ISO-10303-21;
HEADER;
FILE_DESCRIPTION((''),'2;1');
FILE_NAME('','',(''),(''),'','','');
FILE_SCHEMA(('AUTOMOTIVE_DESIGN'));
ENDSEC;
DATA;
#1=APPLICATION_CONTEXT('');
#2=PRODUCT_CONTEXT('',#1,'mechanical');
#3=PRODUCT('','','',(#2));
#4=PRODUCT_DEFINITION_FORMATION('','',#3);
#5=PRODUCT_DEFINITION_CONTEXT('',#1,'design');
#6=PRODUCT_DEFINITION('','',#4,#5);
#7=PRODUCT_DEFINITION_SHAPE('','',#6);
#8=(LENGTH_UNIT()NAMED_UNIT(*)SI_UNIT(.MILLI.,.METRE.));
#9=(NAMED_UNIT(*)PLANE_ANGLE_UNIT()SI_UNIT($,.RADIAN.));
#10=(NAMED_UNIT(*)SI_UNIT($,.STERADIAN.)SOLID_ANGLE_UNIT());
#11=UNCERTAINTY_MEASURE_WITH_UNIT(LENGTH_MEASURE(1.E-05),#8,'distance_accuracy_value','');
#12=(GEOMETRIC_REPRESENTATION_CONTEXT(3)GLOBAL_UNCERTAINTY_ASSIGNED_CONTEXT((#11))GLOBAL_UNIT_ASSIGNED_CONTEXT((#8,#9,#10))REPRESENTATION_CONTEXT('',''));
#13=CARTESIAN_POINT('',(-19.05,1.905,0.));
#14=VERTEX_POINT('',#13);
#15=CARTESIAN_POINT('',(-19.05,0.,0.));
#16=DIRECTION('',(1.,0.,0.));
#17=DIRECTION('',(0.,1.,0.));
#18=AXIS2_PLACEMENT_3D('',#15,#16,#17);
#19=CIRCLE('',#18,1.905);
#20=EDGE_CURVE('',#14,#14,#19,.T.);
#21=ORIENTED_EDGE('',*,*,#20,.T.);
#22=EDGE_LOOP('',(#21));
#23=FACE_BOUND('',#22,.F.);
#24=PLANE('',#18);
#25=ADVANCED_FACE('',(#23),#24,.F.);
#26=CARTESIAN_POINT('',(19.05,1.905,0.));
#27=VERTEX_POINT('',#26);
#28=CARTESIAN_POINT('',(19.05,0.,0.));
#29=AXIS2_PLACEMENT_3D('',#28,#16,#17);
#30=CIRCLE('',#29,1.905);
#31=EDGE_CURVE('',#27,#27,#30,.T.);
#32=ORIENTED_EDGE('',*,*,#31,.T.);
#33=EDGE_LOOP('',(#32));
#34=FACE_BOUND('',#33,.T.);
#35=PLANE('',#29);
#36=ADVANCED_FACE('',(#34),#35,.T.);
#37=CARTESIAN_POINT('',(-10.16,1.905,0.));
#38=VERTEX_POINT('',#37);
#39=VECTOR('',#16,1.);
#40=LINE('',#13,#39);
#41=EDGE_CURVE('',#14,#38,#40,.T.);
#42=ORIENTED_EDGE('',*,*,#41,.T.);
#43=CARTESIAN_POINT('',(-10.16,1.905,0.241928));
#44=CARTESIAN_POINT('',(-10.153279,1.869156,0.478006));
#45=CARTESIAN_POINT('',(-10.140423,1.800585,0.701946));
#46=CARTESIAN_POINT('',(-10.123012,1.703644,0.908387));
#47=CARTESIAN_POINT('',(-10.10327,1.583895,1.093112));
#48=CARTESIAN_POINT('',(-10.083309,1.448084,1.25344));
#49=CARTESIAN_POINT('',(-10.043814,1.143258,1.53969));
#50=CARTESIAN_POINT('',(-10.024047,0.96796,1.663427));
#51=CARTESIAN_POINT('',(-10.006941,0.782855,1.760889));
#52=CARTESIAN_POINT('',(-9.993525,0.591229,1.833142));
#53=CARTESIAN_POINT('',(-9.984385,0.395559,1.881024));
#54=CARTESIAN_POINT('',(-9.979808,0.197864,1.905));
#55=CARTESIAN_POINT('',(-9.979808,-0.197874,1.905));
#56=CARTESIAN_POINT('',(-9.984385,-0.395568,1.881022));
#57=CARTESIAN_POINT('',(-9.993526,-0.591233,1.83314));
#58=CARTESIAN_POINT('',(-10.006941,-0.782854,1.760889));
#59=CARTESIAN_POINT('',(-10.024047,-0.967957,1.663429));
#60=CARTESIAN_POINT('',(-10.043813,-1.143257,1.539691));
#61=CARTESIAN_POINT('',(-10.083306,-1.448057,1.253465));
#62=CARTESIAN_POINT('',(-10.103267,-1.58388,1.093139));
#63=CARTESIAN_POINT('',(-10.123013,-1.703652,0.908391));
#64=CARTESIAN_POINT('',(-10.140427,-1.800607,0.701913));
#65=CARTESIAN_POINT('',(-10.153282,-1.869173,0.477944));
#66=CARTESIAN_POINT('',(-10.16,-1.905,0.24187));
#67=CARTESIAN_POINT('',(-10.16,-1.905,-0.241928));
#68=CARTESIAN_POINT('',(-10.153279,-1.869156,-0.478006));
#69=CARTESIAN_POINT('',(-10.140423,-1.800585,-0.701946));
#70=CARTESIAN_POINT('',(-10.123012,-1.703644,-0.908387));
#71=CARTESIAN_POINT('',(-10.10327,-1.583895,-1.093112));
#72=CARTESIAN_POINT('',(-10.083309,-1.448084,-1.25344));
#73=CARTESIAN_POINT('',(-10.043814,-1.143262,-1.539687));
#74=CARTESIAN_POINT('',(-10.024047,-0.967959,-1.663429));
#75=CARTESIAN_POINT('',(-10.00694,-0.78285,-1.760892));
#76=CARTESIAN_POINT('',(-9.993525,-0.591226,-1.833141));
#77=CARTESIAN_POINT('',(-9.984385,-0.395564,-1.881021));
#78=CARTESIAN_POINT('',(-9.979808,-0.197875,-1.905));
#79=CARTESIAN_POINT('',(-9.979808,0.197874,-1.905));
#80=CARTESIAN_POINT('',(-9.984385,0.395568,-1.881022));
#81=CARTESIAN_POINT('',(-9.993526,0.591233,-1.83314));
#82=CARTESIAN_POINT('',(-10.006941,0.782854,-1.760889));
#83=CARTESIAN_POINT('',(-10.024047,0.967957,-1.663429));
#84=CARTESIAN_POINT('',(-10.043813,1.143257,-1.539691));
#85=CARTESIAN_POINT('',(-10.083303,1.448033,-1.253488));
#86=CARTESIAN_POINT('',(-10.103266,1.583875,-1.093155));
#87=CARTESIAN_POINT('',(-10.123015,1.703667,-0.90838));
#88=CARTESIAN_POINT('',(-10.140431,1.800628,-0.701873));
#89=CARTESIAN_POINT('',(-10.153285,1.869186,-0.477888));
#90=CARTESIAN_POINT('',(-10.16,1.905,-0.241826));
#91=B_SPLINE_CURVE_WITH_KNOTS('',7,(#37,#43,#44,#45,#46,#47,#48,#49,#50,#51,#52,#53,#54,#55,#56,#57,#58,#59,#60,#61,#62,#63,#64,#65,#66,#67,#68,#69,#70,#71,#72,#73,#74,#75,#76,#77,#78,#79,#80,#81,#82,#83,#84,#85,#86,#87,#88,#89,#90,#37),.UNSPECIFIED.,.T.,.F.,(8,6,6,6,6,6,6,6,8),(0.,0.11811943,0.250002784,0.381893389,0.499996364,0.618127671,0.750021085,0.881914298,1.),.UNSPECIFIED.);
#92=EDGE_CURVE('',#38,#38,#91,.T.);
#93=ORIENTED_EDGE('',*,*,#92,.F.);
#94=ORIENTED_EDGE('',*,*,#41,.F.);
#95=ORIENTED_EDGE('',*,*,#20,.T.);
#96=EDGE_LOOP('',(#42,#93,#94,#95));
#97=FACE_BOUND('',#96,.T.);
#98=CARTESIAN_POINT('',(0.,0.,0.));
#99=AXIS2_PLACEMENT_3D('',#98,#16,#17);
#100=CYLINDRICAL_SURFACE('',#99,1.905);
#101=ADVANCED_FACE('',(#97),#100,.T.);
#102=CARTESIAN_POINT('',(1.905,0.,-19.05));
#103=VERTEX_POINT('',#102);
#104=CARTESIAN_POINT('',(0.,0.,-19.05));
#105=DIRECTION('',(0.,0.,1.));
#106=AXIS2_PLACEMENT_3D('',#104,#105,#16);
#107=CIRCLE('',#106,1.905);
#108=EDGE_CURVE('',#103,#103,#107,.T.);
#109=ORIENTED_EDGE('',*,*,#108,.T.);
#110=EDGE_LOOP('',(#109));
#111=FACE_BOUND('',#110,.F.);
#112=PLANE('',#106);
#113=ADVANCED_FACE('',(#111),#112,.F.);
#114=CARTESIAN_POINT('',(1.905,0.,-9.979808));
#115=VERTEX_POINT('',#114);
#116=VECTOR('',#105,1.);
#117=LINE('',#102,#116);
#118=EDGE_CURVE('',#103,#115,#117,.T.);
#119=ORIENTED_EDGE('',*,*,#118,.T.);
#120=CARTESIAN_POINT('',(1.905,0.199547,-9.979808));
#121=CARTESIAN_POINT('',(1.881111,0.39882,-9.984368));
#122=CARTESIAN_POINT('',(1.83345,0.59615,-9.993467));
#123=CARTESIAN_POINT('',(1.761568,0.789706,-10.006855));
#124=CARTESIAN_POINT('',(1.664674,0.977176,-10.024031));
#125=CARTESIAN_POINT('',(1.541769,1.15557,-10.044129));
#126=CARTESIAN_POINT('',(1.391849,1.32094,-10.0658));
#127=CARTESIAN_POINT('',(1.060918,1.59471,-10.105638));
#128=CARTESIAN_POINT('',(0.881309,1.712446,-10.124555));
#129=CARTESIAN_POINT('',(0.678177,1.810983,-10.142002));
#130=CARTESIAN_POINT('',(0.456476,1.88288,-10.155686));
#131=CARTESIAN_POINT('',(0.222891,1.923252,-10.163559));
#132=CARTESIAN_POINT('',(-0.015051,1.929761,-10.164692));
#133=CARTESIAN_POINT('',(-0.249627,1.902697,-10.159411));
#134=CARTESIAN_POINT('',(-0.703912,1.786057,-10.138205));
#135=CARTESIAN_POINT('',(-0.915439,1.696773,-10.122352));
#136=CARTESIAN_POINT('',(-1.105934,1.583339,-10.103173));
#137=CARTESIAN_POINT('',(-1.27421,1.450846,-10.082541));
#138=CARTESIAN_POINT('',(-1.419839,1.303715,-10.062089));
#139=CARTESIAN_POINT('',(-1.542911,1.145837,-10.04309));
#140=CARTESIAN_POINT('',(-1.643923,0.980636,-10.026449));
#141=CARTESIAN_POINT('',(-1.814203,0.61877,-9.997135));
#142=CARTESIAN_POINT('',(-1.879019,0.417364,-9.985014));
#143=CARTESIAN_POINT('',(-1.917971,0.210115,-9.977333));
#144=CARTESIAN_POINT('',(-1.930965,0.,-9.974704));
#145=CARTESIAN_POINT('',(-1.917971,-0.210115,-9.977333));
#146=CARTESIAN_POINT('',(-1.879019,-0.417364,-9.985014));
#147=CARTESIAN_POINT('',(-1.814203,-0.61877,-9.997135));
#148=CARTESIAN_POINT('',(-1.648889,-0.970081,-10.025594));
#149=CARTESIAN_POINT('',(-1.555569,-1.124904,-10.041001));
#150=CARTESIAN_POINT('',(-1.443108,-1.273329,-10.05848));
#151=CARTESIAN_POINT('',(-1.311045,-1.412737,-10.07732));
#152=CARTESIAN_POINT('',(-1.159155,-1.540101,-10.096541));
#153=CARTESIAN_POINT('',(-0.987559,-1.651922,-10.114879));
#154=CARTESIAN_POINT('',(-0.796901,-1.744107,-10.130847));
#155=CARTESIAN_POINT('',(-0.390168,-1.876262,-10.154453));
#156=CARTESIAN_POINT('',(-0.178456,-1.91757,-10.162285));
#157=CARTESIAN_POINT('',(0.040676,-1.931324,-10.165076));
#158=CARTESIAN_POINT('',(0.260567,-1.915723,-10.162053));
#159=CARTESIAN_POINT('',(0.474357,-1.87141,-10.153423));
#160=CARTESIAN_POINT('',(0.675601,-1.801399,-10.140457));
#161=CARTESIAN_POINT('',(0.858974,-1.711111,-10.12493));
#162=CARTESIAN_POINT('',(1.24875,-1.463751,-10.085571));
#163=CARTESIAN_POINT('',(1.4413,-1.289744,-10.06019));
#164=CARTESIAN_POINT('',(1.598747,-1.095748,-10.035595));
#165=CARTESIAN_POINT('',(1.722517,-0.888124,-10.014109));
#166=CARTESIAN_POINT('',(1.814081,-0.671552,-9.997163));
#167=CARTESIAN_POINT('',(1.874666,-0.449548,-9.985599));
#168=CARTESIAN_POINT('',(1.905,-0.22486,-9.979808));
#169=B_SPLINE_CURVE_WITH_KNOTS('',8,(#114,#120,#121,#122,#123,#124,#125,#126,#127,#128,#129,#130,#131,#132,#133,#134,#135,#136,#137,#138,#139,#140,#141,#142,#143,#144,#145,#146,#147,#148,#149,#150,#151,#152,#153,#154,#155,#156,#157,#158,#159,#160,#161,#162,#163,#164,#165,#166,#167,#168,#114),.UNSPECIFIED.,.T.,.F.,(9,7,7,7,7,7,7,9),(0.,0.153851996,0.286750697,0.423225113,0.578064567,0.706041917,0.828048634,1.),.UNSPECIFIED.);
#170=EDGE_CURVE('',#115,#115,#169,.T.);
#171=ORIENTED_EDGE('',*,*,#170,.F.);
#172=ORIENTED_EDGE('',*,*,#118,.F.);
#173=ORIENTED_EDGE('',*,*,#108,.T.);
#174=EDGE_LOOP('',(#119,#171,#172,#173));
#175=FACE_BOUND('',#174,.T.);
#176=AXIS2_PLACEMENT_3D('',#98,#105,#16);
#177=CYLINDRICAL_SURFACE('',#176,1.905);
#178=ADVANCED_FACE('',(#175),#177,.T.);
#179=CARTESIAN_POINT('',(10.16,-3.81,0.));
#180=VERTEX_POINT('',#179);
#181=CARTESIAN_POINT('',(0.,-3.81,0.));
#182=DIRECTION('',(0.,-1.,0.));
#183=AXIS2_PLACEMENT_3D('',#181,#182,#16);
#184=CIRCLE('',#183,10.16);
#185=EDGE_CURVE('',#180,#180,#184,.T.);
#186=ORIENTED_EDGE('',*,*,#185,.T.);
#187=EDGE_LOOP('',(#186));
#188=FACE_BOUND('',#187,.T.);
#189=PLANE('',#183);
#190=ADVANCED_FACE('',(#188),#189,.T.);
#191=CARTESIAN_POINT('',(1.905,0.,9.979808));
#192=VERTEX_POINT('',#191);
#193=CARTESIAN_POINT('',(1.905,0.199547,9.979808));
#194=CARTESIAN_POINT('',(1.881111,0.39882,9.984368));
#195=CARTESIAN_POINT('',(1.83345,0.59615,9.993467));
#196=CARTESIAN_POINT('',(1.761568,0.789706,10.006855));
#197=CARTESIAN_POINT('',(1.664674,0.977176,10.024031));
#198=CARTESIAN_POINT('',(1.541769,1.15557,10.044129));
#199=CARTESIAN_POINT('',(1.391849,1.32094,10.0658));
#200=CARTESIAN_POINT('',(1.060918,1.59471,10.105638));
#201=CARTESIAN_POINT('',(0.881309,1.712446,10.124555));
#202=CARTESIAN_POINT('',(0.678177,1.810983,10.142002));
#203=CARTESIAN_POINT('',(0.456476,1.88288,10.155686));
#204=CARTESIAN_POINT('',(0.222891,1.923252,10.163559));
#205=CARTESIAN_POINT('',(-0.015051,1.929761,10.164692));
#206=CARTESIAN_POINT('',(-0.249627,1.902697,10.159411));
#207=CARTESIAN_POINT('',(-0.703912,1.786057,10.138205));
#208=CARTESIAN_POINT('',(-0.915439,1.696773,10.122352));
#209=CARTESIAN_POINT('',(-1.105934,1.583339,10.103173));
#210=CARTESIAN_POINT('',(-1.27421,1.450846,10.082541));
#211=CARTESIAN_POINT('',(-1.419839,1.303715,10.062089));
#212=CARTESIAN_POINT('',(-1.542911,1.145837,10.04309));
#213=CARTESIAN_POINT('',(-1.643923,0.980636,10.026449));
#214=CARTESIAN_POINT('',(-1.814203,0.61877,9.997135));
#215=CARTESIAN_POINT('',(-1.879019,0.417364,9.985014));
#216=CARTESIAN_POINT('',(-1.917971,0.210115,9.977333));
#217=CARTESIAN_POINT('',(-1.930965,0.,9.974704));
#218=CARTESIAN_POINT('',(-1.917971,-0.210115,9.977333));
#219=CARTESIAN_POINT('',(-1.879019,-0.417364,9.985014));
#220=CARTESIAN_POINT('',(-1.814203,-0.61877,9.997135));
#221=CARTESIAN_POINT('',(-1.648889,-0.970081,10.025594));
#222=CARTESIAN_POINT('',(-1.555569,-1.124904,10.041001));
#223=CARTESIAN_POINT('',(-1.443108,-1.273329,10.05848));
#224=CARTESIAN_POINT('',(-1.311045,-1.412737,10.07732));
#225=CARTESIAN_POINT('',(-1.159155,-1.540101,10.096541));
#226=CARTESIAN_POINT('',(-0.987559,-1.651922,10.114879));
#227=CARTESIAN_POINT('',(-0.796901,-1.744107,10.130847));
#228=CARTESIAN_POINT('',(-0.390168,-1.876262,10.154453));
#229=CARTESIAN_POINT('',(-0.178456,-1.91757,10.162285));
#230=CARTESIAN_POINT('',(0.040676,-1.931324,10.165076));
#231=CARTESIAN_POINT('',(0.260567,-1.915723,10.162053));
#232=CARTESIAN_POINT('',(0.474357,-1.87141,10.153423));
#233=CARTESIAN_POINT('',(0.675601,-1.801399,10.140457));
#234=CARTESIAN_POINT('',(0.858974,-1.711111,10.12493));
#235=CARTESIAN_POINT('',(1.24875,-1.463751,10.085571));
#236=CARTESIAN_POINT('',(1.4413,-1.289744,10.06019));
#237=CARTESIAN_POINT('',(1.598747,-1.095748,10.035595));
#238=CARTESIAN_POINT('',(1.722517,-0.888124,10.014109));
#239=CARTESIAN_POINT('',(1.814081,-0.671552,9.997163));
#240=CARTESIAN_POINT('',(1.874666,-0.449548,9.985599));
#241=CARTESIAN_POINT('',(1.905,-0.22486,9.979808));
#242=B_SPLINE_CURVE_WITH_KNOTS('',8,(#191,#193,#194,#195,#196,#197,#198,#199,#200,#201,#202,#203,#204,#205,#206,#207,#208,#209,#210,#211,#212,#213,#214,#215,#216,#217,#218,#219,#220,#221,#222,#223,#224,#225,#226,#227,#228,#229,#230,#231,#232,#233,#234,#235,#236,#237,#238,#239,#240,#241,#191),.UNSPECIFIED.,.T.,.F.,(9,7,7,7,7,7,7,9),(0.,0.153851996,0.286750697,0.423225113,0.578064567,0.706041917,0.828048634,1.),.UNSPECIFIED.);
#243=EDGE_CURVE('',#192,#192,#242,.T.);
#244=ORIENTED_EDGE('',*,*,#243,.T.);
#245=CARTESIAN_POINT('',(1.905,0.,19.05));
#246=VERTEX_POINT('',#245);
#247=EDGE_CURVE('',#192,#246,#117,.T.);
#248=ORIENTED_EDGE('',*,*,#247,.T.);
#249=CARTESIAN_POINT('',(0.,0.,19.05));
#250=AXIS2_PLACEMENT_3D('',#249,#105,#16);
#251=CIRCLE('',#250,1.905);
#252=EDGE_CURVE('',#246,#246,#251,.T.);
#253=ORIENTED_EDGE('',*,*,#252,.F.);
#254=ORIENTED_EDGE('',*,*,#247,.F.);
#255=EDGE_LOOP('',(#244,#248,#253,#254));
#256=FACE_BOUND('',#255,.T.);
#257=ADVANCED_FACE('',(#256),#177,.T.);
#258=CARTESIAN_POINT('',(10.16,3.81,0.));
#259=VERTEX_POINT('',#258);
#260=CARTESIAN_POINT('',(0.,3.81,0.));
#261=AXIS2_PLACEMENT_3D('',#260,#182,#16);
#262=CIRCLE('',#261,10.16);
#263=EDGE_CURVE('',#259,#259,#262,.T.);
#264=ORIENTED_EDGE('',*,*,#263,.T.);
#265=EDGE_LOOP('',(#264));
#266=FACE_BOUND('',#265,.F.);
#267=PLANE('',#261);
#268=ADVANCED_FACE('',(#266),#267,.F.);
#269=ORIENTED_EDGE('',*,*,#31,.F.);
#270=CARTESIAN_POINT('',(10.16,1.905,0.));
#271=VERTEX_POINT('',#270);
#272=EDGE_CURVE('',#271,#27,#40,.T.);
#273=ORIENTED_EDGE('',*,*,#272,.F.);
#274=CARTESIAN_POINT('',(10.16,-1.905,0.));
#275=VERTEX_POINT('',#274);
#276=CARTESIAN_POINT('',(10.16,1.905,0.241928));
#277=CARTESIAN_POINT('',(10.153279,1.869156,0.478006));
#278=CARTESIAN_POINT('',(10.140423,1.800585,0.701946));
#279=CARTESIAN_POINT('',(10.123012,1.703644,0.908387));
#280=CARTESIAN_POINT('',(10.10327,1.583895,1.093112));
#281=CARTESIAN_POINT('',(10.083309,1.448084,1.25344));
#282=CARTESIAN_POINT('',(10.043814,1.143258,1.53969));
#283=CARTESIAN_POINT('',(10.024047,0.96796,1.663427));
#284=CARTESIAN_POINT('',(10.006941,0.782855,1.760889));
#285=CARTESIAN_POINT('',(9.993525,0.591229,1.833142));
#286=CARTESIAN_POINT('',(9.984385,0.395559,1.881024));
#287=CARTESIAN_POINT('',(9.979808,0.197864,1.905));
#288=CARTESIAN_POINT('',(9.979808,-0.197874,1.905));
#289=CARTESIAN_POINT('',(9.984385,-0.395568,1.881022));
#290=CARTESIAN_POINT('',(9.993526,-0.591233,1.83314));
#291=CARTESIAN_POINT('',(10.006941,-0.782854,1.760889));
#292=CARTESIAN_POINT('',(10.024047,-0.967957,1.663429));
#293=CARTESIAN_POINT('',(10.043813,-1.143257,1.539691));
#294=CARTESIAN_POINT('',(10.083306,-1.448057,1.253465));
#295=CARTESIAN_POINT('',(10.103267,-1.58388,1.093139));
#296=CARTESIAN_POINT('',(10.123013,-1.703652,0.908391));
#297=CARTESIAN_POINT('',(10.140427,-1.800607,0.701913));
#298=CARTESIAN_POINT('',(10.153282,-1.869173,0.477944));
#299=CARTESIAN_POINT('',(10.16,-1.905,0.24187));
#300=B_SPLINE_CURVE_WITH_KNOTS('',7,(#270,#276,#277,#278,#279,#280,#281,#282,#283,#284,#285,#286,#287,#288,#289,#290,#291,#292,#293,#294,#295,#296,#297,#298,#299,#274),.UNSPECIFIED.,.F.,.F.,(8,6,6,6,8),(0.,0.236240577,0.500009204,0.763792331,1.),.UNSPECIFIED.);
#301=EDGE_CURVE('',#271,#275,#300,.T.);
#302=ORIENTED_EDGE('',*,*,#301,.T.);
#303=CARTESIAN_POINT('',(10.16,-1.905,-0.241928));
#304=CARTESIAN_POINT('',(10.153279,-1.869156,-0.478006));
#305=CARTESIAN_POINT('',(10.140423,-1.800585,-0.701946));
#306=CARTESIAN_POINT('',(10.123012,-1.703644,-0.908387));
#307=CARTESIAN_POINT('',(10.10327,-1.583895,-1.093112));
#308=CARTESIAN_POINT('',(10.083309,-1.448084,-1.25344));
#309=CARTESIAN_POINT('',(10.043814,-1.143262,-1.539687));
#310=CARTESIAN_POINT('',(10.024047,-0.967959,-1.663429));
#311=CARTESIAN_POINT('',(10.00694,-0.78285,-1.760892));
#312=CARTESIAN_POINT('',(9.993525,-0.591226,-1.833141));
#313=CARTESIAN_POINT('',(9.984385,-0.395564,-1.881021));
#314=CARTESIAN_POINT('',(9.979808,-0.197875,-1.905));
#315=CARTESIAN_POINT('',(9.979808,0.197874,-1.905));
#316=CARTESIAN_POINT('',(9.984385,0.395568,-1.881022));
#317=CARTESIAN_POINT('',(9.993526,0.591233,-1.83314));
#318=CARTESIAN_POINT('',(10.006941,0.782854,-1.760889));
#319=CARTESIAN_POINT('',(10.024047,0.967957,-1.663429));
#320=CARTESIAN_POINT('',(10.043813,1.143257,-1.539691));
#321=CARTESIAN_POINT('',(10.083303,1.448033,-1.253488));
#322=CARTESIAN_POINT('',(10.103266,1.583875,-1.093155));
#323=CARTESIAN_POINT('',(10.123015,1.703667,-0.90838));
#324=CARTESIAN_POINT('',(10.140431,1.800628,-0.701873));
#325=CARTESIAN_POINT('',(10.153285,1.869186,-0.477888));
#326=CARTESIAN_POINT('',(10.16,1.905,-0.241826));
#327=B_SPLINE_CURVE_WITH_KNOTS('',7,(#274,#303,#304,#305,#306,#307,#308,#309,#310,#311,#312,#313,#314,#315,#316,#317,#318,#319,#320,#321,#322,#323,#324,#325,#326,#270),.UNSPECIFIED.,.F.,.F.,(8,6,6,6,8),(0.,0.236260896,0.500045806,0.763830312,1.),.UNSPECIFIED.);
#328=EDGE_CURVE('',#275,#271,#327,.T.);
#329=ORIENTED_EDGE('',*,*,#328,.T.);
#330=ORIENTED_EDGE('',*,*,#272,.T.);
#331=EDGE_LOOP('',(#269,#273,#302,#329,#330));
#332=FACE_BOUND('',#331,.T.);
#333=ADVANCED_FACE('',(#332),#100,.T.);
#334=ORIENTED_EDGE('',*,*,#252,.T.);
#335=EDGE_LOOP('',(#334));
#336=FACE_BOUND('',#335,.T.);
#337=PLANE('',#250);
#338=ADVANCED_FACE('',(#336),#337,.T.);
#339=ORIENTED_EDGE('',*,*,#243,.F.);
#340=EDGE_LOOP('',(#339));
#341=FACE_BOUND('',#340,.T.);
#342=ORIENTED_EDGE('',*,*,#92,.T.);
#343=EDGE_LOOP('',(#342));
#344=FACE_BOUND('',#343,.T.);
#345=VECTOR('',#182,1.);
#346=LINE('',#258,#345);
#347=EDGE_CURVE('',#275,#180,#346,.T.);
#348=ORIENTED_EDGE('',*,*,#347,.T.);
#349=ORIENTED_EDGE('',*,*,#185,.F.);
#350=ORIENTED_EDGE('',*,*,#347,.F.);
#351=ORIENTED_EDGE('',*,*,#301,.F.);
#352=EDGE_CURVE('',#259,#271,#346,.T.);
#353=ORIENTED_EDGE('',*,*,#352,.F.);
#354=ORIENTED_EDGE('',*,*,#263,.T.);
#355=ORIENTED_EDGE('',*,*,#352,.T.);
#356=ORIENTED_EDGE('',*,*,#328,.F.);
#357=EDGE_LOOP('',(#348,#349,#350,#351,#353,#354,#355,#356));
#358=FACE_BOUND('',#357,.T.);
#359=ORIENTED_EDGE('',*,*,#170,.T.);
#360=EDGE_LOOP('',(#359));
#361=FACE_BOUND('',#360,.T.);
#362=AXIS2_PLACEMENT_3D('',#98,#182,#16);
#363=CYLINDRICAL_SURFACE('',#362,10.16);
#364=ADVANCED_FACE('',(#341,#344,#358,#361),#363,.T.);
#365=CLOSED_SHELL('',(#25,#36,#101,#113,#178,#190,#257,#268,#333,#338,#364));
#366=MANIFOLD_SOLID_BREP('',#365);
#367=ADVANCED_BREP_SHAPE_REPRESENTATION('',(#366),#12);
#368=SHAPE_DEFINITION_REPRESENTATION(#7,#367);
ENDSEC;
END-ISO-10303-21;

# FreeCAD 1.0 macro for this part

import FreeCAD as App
import Part
import Sketcher

V = App.Vector
Q = App.Units.Quantity

doc = App.newDocument("Part")
body = doc.addObject("PartDesign::Body", "Body")

# Sketch on XZ plane
sketch1 = body.newObject("Sketcher::SketchObject", "Sketch")
sketch1.AttachmentSupport = (doc.getObject("XZ_Plane"), [""])
sketch1.MapMode = "FlatFace"
sketch1.addGeometry(Part.Circle(V(0, 0, 0), V(0, 0, 1), 10), False)
sketch1.addConstraint(Sketcher.Constraint("Coincident", 0, 3, -1, 1))
sketch1.addConstraint(Sketcher.Constraint("Diameter", 0, Q("0.8 in")))
pad1 = body.newObject("PartDesign::Pad", "Pad")
pad1.Profile = sketch1
pad1.Length = Q("0.3 in")
pad1.Midplane = True

# Sketch on XY plane
sketch2 = body.newObject("Sketcher::SketchObject", "Sketch001")
sketch2.AttachmentSupport = (doc.getObject("XY_Plane"), [""])
sketch2.MapMode = "FlatFace"
sketch2.addGeometry(Part.Circle(V(0, 0, 0), V(0, 0, 1), 1.9), False)
sketch2.addConstraint(Sketcher.Constraint("Coincident", 0, 3, -1, 1))
sketch2.addConstraint(Sketcher.Constraint("Diameter", 0, Q("0.15 in")))
pad2 = body.newObject("PartDesign::Pad", "Pad001")
pad2.Profile = sketch2
pad2.Length = Q("1.5 in")
pad2.Midplane = True

# Sketch on YZ plane
sketch3 = body.newObject("Sketcher::SketchObject", "Sketch002")
sketch3.AttachmentSupport = (doc.getObject("YZ_Plane"), [""])
sketch3.MapMode = "FlatFace"
sketch3.addGeometry(Part.Circle(V(0, 0, 0), V(0, 0, 1), 1.9), False)
sketch3.addConstraint(Sketcher.Constraint("Coincident", 0, 3, -1, 1))
sketch3.addConstraint(Sketcher.Constraint("Diameter", 0, Q("0.15 in")))
pad3 = body.newObject("PartDesign::Pad", "Pad002")
pad3.Profile = sketch3
pad3.Length = Q("1.5 in")
pad3.Midplane = True

doc.recompute()
